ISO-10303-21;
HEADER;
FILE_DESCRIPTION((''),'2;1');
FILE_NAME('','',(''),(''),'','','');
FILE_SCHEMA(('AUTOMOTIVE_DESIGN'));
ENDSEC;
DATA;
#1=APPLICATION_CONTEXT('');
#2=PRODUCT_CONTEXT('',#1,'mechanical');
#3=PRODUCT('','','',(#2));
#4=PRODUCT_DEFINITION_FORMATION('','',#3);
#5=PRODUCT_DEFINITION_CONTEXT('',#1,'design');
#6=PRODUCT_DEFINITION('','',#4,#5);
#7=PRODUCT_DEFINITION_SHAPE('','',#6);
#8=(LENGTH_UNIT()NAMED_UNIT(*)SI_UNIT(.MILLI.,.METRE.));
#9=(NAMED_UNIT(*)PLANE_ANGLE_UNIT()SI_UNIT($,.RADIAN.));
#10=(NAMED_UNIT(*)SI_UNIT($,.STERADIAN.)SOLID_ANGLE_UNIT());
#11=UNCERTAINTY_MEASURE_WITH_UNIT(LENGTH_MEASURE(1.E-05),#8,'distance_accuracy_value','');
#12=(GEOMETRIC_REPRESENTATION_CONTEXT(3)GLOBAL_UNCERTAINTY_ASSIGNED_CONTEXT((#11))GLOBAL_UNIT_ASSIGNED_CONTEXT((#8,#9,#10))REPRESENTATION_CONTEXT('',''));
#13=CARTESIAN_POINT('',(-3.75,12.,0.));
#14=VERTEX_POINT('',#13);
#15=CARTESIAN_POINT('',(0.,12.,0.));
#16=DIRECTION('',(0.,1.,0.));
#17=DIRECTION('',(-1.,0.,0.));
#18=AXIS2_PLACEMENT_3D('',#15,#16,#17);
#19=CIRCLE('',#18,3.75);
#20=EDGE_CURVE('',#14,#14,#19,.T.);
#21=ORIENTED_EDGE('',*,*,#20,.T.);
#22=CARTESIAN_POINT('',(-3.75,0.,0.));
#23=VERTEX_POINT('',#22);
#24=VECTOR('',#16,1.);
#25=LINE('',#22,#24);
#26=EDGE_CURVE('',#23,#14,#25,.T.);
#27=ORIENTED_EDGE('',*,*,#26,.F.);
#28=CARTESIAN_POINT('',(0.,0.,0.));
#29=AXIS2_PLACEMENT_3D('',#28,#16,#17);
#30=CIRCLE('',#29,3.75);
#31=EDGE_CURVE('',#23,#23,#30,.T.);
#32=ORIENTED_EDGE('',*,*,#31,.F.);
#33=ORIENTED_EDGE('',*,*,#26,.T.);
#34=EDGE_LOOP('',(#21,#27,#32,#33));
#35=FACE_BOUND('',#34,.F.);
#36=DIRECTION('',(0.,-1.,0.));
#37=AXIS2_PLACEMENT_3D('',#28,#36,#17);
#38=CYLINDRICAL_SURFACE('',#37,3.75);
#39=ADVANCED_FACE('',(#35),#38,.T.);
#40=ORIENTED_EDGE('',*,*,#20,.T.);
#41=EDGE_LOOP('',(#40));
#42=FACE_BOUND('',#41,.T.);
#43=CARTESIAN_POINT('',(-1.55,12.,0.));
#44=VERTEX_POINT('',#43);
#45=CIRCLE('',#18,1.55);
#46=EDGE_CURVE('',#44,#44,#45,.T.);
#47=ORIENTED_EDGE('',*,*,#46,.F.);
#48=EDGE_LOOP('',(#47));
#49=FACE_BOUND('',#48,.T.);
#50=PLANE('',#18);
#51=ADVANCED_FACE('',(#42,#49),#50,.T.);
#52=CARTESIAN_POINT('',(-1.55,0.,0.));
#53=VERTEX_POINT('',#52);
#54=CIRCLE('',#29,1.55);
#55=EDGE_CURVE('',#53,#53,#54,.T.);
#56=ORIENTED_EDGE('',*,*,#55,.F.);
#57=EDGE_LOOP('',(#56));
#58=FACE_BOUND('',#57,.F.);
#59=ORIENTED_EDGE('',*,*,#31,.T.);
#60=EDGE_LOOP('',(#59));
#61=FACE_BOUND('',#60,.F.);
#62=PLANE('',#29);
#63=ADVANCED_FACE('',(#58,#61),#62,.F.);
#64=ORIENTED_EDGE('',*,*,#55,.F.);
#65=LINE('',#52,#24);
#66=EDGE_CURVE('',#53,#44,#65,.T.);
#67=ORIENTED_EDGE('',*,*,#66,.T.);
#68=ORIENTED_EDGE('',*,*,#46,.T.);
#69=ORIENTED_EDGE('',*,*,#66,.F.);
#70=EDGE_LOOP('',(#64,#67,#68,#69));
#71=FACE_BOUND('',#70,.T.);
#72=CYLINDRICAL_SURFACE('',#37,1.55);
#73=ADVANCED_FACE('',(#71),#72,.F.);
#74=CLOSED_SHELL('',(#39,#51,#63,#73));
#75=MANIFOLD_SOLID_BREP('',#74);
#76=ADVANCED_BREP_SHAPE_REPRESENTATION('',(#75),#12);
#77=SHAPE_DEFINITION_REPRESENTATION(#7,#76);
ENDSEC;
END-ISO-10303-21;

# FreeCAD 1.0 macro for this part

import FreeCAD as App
import Part
import Sketcher

V = App.Vector
Q = App.Units.Quantity

doc = App.newDocument("Part")
params = doc.addObject("Spreadsheet::Sheet", "Params")
for row, (alias, value) in enumerate([
    ("sketch1_diameter", "7.5 mm"),
    ("sketch1_diameter2", "3.1 mm"),
    ("pad1_length", "12 mm"),
], start=1):
    params.set(f"A{row}", alias)
    params.set(f"B{row}", "=" + value)
    params.setAlias(f"B{row}", alias)

body = doc.addObject("PartDesign::Body", "Body")

# Sketch on XZ plane
sketch1 = doc.addObject("Sketcher::SketchObject", "Sketch")
body.addObject(sketch1)
sketch1.AttachmentSupport = (doc.XZ_Plane, [""])
sketch1.MapMode = "FlatFace"
sketch1.addGeometry(Part.Circle(V(0, 0, 0), V(0, 0, 1), 3.8), False)
sketch1.addGeometry(Part.Circle(V(0, 0, 0), V(0, 0, 1), 1.6), False)
sketch1.addConstraint(Sketcher.Constraint("Coincident", 0, 3, -1, 1))
sketch1.addConstraint(Sketcher.Constraint("Coincident", 1, 3, -1, 1))
sketch1.addConstraint(Sketcher.Constraint("Diameter", 0, Q("7.5 mm")))
sketch1.addConstraint(Sketcher.Constraint("Diameter", 1, Q("3.1 mm")))
sketch1.setExpression("Constraints[2]", "Params.sketch1_diameter")
sketch1.setExpression("Constraints[3]", "Params.sketch1_diameter2")
pad1 = doc.addObject("PartDesign::Pad", "Pad")
body.addObject(pad1)
pad1.Profile = sketch1
pad1.setExpression("Length", "Params.pad1_length")
pad1.Reversed = True

doc.recompute()
